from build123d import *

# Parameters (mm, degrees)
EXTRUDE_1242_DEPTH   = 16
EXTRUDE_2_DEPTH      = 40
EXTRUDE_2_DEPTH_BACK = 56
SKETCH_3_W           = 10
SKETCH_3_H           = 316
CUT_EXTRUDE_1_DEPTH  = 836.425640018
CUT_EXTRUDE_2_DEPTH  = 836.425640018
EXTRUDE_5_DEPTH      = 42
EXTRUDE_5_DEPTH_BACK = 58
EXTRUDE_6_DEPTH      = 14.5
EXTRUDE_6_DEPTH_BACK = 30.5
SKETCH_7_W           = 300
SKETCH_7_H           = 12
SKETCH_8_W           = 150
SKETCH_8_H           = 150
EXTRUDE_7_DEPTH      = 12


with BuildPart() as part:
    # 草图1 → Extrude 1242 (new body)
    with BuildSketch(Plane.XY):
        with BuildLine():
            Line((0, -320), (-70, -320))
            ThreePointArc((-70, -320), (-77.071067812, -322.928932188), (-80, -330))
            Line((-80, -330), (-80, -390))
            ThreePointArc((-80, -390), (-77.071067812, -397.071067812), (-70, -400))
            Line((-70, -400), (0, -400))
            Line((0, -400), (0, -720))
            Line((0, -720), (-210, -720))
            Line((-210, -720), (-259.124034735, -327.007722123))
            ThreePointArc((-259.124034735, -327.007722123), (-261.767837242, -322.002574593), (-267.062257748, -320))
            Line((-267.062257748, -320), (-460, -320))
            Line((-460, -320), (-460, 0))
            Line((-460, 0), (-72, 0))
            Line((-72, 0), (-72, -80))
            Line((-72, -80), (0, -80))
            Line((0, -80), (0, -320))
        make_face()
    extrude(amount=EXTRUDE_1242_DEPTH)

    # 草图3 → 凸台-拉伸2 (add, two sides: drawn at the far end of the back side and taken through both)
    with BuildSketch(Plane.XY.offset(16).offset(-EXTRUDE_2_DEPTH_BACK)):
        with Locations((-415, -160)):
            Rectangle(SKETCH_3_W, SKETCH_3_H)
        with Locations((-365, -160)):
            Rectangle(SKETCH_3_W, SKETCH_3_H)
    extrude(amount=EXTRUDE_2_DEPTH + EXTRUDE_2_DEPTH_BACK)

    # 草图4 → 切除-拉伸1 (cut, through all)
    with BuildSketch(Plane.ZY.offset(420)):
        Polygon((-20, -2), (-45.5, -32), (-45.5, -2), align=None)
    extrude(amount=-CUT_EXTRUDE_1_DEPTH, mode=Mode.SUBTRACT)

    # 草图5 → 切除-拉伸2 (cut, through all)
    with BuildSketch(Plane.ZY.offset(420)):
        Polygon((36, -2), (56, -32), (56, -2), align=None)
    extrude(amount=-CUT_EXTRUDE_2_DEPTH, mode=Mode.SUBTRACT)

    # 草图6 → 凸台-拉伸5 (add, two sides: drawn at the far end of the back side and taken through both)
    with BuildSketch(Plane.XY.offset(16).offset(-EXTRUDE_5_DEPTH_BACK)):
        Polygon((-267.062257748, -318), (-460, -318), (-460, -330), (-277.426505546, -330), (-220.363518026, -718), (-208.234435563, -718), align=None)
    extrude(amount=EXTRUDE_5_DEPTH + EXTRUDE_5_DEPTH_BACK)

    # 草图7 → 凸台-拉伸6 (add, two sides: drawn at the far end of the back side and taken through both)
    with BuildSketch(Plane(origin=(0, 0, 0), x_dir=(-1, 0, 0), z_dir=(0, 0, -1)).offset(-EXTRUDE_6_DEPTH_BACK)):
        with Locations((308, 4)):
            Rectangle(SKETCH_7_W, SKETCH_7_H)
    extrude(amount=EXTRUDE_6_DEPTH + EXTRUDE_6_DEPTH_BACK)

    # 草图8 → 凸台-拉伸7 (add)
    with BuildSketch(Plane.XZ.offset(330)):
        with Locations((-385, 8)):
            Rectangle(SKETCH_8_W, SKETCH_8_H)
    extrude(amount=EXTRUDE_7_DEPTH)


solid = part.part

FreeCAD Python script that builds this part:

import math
import FreeCAD as App
import Part
import Sketcher
from FreeCAD import Vector
Q = App.Units.Quantity

doc = App.newDocument("Part")
body = doc.addObject("PartDesign::Body", "Body")

# Sketch on XY plane
sketch1 = body.newObject("Sketcher::SketchObject", "Sketch")
sketch1.AttachmentSupport = (doc.getObject("XY_Plane"), [""])
sketch1.MapMode = "FlatFace"
sketch1.addGeometry(Part.LineSegment(Vector(-70, -320, 0), Vector(0, -320, 0)), False)
sketch1.addGeometry(Part.LineSegment(Vector(0, -320, 0), Vector(0, -80, 0)), False)
sketch1.addGeometry(Part.LineSegment(Vector(0, -80, 0), Vector(-72, -80, 0)), False)
sketch1.addGeometry(Part.LineSegment(Vector(-72, -80, 0), Vector(-72, 0, 0)), False)
sketch1.addGeometry(Part.LineSegment(Vector(-72, 0, 0), Vector(-460, 0, 0)), False)
sketch1.addGeometry(Part.LineSegment(Vector(-460, 0, 0), Vector(-460, -320, 0)), False)
sketch1.addGeometry(Part.LineSegment(Vector(-460, -320, 0), Vector(-267, -320, 0)), False)
sketch1.addGeometry(Part.ArcOfCircle(Part.Circle(Vector(-267, -328, 0), Vector(0, 0, 1), 8), math.radians(7), math.radians(90)), False)
sketch1.addGeometry(Part.LineSegment(Vector(-259, -327, 0), Vector(-210, -720, 0)), False)
sketch1.addGeometry(Part.LineSegment(Vector(-210, -720, 0), Vector(0, -720, 0)), False)
sketch1.addGeometry(Part.LineSegment(Vector(0, -720, 0), Vector(0, -400, 0)), False)
sketch1.addGeometry(Part.LineSegment(Vector(0, -400, 0), Vector(-70, -400, 0)), False)
sketch1.addGeometry(Part.ArcOfCircle(Part.Circle(Vector(-70, -390, 0), Vector(0, 0, 1), 10), math.radians(180), math.radians(270)), False)
sketch1.addGeometry(Part.LineSegment(Vector(-80, -390, 0), Vector(-80, -330, 0)), False)
sketch1.addGeometry(Part.ArcOfCircle(Part.Circle(Vector(-70, -330, 0), Vector(0, 0, 1), 10), math.radians(90), math.radians(180)), False)
sketch1.addConstraint(Sketcher.Constraint("Coincident", 0, 2, 1, 1))
sketch1.addConstraint(Sketcher.Constraint("Coincident", 1, 2, 2, 1))
sketch1.addConstraint(Sketcher.Constraint("Coincident", 2, 2, 3, 1))
sketch1.addConstraint(Sketcher.Constraint("Coincident", 3, 2, 4, 1))
sketch1.addConstraint(Sketcher.Constraint("Coincident", 4, 2, 5, 1))
sketch1.addConstraint(Sketcher.Constraint("Coincident", 5, 2, 6, 1))
sketch1.addConstraint(Sketcher.Constraint("Tangent", 6, 2, 7, 2))
sketch1.addConstraint(Sketcher.Constraint("Tangent", 7, 1, 8, 1))
sketch1.addConstraint(Sketcher.Constraint("Coincident", 8, 2, 9, 1))
sketch1.addConstraint(Sketcher.Constraint("Coincident", 9, 2, 10, 1))
sketch1.addConstraint(Sketcher.Constraint("Coincident", 10, 2, 11, 1))
sketch1.addConstraint(Sketcher.Constraint("Tangent", 11, 2, 12, 2))
sketch1.addConstraint(Sketcher.Constraint("Tangent", 12, 1, 13, 1))
sketch1.addConstraint(Sketcher.Constraint("Tangent", 13, 2, 14, 2))
sketch1.addConstraint(Sketcher.Constraint("Tangent", 14, 1, 0, 1))
sketch1.addConstraint(Sketcher.Constraint("Horizontal", 0))
sketch1.addConstraint(Sketcher.Constraint("Vertical", 1))
sketch1.addConstraint(Sketcher.Constraint("Horizontal", 2))
sketch1.addConstraint(Sketcher.Constraint("Vertical", 3))
sketch1.addConstraint(Sketcher.Constraint("Horizontal", 4))
sketch1.addConstraint(Sketcher.Constraint("Vertical", 5))
sketch1.addConstraint(Sketcher.Constraint("Horizontal", 6))
sketch1.addConstraint(Sketcher.Constraint("Horizontal", 9))
sketch1.addConstraint(Sketcher.Constraint("Vertical", 10))
sketch1.addConstraint(Sketcher.Constraint("Horizontal", 11))
sketch1.addConstraint(Sketcher.Constraint("Vertical", 13))
sketch1.addConstraint(Sketcher.Constraint("Equal", 12, 14))
sketch1.addConstraint(Sketcher.Constraint("PointOnObject", 0, 2, -2))
sketch1.addConstraint(Sketcher.Constraint("PointOnObject", 3, 2, -1))
sketch1.addConstraint(Sketcher.Constraint("PointOnObject", 9, 2, -2))
sketch1.addConstraint(Sketcher.Constraint("Horizontal", 0, 2, 5, 2))
sketch1.addConstraint(Sketcher.Constraint("Equal", 5, 10))
sketch1.addConstraint(Sketcher.Constraint("Radius", 7, Q("8 mm")))
sketch1.addConstraint(Sketcher.Constraint("Radius", 12, Q("10 mm")))
sketch1.addConstraint(Sketcher.Constraint("DistanceX", 0, 1, 0, 2, Q("70 mm")))
sketch1.addConstraint(Sketcher.Constraint("DistanceX", 2, 2, 2, 1, Q("72 mm")))
sketch1.addConstraint(Sketcher.Constraint("DistanceX", 4, 2, 4, 1, Q("388 mm")))
sketch1.addConstraint(Sketcher.Constraint("DistanceX", 9, 1, 9, 2, Q("210 mm")))
sketch1.addConstraint(Sketcher.Constraint("DistanceY", 1, 1, 1, 2, Q("240 mm")))
sketch1.addConstraint(Sketcher.Constraint("DistanceY", 3, 1, 3, 2, Q("80 mm")))
sketch1.addConstraint(Sketcher.Constraint("DistanceY", 13, 1, 13, 2, Q("60 mm")))
sketch1.addConstraint(Sketcher.Constraint("Distance", 8, Q("396.05063 mm")))
pad1 = body.newObject("PartDesign::Pad", "Pad")
pad1.Profile = sketch1
pad1.Length = 16

# Sketch on XY plane
sketch2 = body.newObject("Sketcher::SketchObject", "Sketch001")
sketch2.AttachmentSupport = (doc.getObject("XY_Plane"), [""])
sketch2.MapMode = "FlatFace"
sketch2.AttachmentOffset = App.Placement(Vector(0, 0, 16), App.Rotation())
sketch2.addGeometry(Part.LineSegment(Vector(-420, -2, 0), Vector(-420, -318, 0)), False)
sketch2.addGeometry(Part.LineSegment(Vector(-420, -318, 0), Vector(-410, -318, 0)), False)
sketch2.addGeometry(Part.LineSegment(Vector(-410, -318, 0), Vector(-410, -2, 0)), False)
sketch2.addGeometry(Part.LineSegment(Vector(-410, -2, 0), Vector(-420, -2, 0)), False)
sketch2.addGeometry(Part.LineSegment(Vector(-370, -2, 0), Vector(-370, -318, 0)), False)
sketch2.addGeometry(Part.LineSegment(Vector(-370, -318, 0), Vector(-360, -318, 0)), False)
sketch2.addGeometry(Part.LineSegment(Vector(-360, -318, 0), Vector(-360, -2, 0)), False)
sketch2.addGeometry(Part.LineSegment(Vector(-360, -2, 0), Vector(-370, -2, 0)), False)
sketch2.addConstraint(Sketcher.Constraint("Coincident", 0, 2, 1, 1))
sketch2.addConstraint(Sketcher.Constraint("Coincident", 1, 2, 2, 1))
sketch2.addConstraint(Sketcher.Constraint("Coincident", 2, 2, 3, 1))
sketch2.addConstraint(Sketcher.Constraint("Coincident", 3, 2, 0, 1))
sketch2.addConstraint(Sketcher.Constraint("Coincident", 4, 2, 5, 1))
sketch2.addConstraint(Sketcher.Constraint("Coincident", 5, 2, 6, 1))
sketch2.addConstraint(Sketcher.Constraint("Coincident", 6, 2, 7, 1))
sketch2.addConstraint(Sketcher.Constraint("Coincident", 7, 2, 4, 1))
sketch2.addConstraint(Sketcher.Constraint("Vertical", 0))
sketch2.addConstraint(Sketcher.Constraint("Horizontal", 1))
sketch2.addConstraint(Sketcher.Constraint("Vertical", 2))
sketch2.addConstraint(Sketcher.Constraint("Horizontal", 3))
sketch2.addConstraint(Sketcher.Constraint("Vertical", 4))
sketch2.addConstraint(Sketcher.Constraint("Horizontal", 5))
sketch2.addConstraint(Sketcher.Constraint("Vertical", 6))
sketch2.addConstraint(Sketcher.Constraint("Horizontal", 7))
sketch2.addConstraint(Sketcher.Constraint("Horizontal", 1, 2, 4, 2))
sketch2.addConstraint(Sketcher.Constraint("Horizontal", 3, 2, 6, 2))
sketch2.addConstraint(Sketcher.Constraint("Equal", 3, 5))
sketch2.addConstraint(Sketcher.Constraint("DistanceX", 1, 1, 1, 2, Q("10 mm")))
sketch2.addConstraint(Sketcher.Constraint("DistanceY", 0, 2, 0, 1, Q("316 mm")))
sketch2.addConstraint(Sketcher.Constraint("DistanceX", 0, 2, -1, 1, Q("420 mm")))
sketch2.addConstraint(Sketcher.Constraint("DistanceY", 0, 2, -1, 1, Q("318 mm")))
sketch2.addConstraint(Sketcher.Constraint("DistanceX", 4, 2, -1, 1, Q("370 mm")))
pad2 = body.newObject("PartDesign::Pad", "Pad001")
pad2.Profile = sketch2
pad2.Type = "TwoLengths"
pad2.Length = 40
pad2.Length2 = 56

# Sketch on YZ plane
sketch3 = body.newObject("Sketcher::SketchObject", "Sketch002")
sketch3.AttachmentSupport = (doc.getObject("YZ_Plane"), [""])
sketch3.MapMode = "FlatFace"
sketch3.AttachmentOffset = App.Placement(Vector(0, 0, -420), App.Rotation())
sketch3.addGeometry(Part.LineSegment(Vector(-32, -46, 0), Vector(-2, -20, 0)), False)
sketch3.addGeometry(Part.LineSegment(Vector(-2, -20, 0), Vector(-2, -46, 0)), False)
sketch3.addGeometry(Part.LineSegment(Vector(-2, -46, 0), Vector(-32, -46, 0)), False)
sketch3.addConstraint(Sketcher.Constraint("Coincident", 0, 2, 1, 1))
sketch3.addConstraint(Sketcher.Constraint("Coincident", 1, 2, 2, 1))
sketch3.addConstraint(Sketcher.Constraint("Coincident", 2, 2, 0, 1))
sketch3.addConstraint(Sketcher.Constraint("Vertical", 1))
sketch3.addConstraint(Sketcher.Constraint("Horizontal", 2))
sketch3.addConstraint(Sketcher.Constraint("DistanceX", 2, 2, 2, 1, Q("30 mm")))
sketch3.addConstraint(Sketcher.Constraint("DistanceY", 1, 2, 1, 1, Q("25.5 mm")))
sketch3.addConstraint(Sketcher.Constraint("DistanceX", 0, 2, -1, 1, Q("2 mm")))
sketch3.addConstraint(Sketcher.Constraint("DistanceY", 0, 2, -1, 1, Q("20 mm")))
pocket1 = body.newObject("PartDesign::Pocket", "Pocket")
pocket1.Profile = sketch3
pocket1.Type = "ThroughAll"
pocket1.Reversed = True

# Sketch on YZ plane
sketch4 = body.newObject("Sketcher::SketchObject", "Sketch003")
sketch4.AttachmentSupport = (doc.getObject("YZ_Plane"), [""])
sketch4.MapMode = "FlatFace"
sketch4.AttachmentOffset = App.Placement(Vector(0, 0, -420), App.Rotation())
sketch4.addGeometry(Part.LineSegment(Vector(-2, 36, 0), Vector(-32, 56, 0)), False)
sketch4.addGeometry(Part.LineSegment(Vector(-32, 56, 0), Vector(-2, 56, 0)), False)
sketch4.addGeometry(Part.LineSegment(Vector(-2, 56, 0), Vector(-2, 36, 0)), False)
sketch4.addConstraint(Sketcher.Constraint("Coincident", 0, 2, 1, 1))
sketch4.addConstraint(Sketcher.Constraint("Coincident", 1, 2, 2, 1))
sketch4.addConstraint(Sketcher.Constraint("Coincident", 2, 2, 0, 1))
sketch4.addConstraint(Sketcher.Constraint("Horizontal", 1))
sketch4.addConstraint(Sketcher.Constraint("Vertical", 2))
sketch4.addConstraint(Sketcher.Constraint("DistanceX", 1, 1, 1, 2, Q("30 mm")))
sketch4.addConstraint(Sketcher.Constraint("DistanceY", 2, 2, 2, 1, Q("20 mm")))
sketch4.addConstraint(Sketcher.Constraint("DistanceX", 0, 2, -1, 1, Q("32 mm")))
sketch4.addConstraint(Sketcher.Constraint("DistanceY", -1, 1, 0, 2, Q("56 mm")))
pocket2 = body.newObject("PartDesign::Pocket", "Pocket001")
pocket2.Profile = sketch4
pocket2.Type = "ThroughAll"
pocket2.Reversed = True

# Sketch on XY plane
sketch5 = body.newObject("Sketcher::SketchObject", "Sketch004")
sketch5.AttachmentSupport = (doc.getObject("XY_Plane"), [""])
sketch5.MapMode = "FlatFace"
sketch5.AttachmentOffset = App.Placement(Vector(0, 0, 16), App.Rotation())
sketch5.addGeometry(Part.LineSegment(Vector(-267, -318, 0), Vector(-460, -318, 0)), False)
sketch5.addGeometry(Part.LineSegment(Vector(-460, -318, 0), Vector(-460, -330, 0)), False)
sketch5.addGeometry(Part.LineSegment(Vector(-460, -330, 0), Vector(-277, -330, 0)), False)
sketch5.addGeometry(Part.LineSegment(Vector(-277, -330, 0), Vector(-220, -718, 0)), False)
sketch5.addGeometry(Part.LineSegment(Vector(-220, -718, 0), Vector(-208, -718, 0)), False)
sketch5.addGeometry(Part.LineSegment(Vector(-208, -718, 0), Vector(-267, -318, 0)), False)
sketch5.addConstraint(Sketcher.Constraint("Coincident", 0, 2, 1, 1))
sketch5.addConstraint(Sketcher.Constraint("Coincident", 1, 2, 2, 1))
sketch5.addConstraint(Sketcher.Constraint("Coincident", 2, 2, 3, 1))
sketch5.addConstraint(Sketcher.Constraint("Coincident", 3, 2, 4, 1))
sketch5.addConstraint(Sketcher.Constraint("Coincident", 4, 2, 5, 1))
sketch5.addConstraint(Sketcher.Constraint("Coincident", 5, 2, 0, 1))
sketch5.addConstraint(Sketcher.Constraint("Horizontal", 0))
sketch5.addConstraint(Sketcher.Constraint("Vertical", 1))
sketch5.addConstraint(Sketcher.Constraint("Horizontal", 2))
sketch5.addConstraint(Sketcher.Constraint("Horizontal", 4))
sketch5.addConstraint(Sketcher.Constraint("Parallel", 3, 5))
sketch5.addConstraint(Sketcher.Constraint("DistanceY", 1, 2, 1, 1, Q("12 mm")))
sketch5.addConstraint(Sketcher.Constraint("DistanceX", 0, 2, -1, 1, Q("460 mm")))
sketch5.addConstraint(Sketcher.Constraint("DistanceY", 0, 2, -1, 1, Q("318 mm")))
sketch5.addConstraint(Sketcher.Constraint("DistanceY", 3, 2, -1, 1, Q("718 mm")))
sketch5.addConstraint(Sketcher.Constraint("Distance", 5, Q("404.302749 mm")))
sketch5.addConstraint(Sketcher.Constraint("DistanceX", 0, 2, 0, 1, Q("192.937742 mm")))
sketch5.addConstraint(Sketcher.Constraint("DistanceX", 2, 1, 2, 2, Q("182.573494 mm")))
pad3 = body.newObject("PartDesign::Pad", "Pad002")
pad3.Profile = sketch5
pad3.Type = "TwoLengths"
pad3.Length = 42
pad3.Length2 = 58

# Sketch on XY plane
sketch6 = body.newObject("Sketcher::SketchObject", "Sketch005")
sketch6.AttachmentSupport = (doc.getObject("XY_Plane"), [""])
sketch6.MapMode = "FlatFace"
sketch6.addGeometry(Part.LineSegment(Vector(-158, 10, 0), Vector(-158, -2, 0)), False)
sketch6.addGeometry(Part.LineSegment(Vector(-158, -2, 0), Vector(-458, -2, 0)), False)
sketch6.addGeometry(Part.LineSegment(Vector(-458, -2, 0), Vector(-458, 10, 0)), False)
sketch6.addGeometry(Part.LineSegment(Vector(-458, 10, 0), Vector(-158, 10, 0)), False)
sketch6.addConstraint(Sketcher.Constraint("Coincident", 0, 2, 1, 1))
sketch6.addConstraint(Sketcher.Constraint("Coincident", 1, 2, 2, 1))
sketch6.addConstraint(Sketcher.Constraint("Coincident", 2, 2, 3, 1))
sketch6.addConstraint(Sketcher.Constraint("Coincident", 3, 2, 0, 1))
sketch6.addConstraint(Sketcher.Constraint("Vertical", 0))
sketch6.addConstraint(Sketcher.Constraint("Horizontal", 1))
sketch6.addConstraint(Sketcher.Constraint("Vertical", 2))
sketch6.addConstraint(Sketcher.Constraint("Horizontal", 3))
sketch6.addConstraint(Sketcher.Constraint("DistanceX", 1, 2, 1, 1, Q("300 mm")))
sketch6.addConstraint(Sketcher.Constraint("DistanceY", 0, 2, 0, 1, Q("12 mm")))
sketch6.addConstraint(Sketcher.Constraint("DistanceX", 0, 2, -1, 1, Q("158 mm")))
sketch6.addConstraint(Sketcher.Constraint("DistanceY", 0, 2, -1, 1, Q("2 mm")))
pad4 = body.newObject("PartDesign::Pad", "Pad003")
pad4.Profile = sketch6
pad4.Type = "TwoLengths"
pad4.Length = 14.5
pad4.Length2 = 30.5
pad4.Reversed = True

# Sketch on XZ plane
sketch7 = body.newObject("Sketcher::SketchObject", "Sketch006")
sketch7.AttachmentSupport = (doc.getObject("XZ_Plane"), [""])
sketch7.MapMode = "FlatFace"
sketch7.AttachmentOffset = App.Placement(Vector(0, 0, 330), App.Rotation())
sketch7.addGeometry(Part.LineSegment(Vector(-460, 83, 0), Vector(-460, -67, 0)), False)
sketch7.addGeometry(Part.LineSegment(Vector(-460, -67, 0), Vector(-310, -67, 0)), False)
sketch7.addGeometry(Part.LineSegment(Vector(-310, -67, 0), Vector(-310, 83, 0)), False)
sketch7.addGeometry(Part.LineSegment(Vector(-310, 83, 0), Vector(-460, 83, 0)), False)
sketch7.addConstraint(Sketcher.Constraint("Coincident", 0, 2, 1, 1))
sketch7.addConstraint(Sketcher.Constraint("Coincident", 1, 2, 2, 1))
sketch7.addConstraint(Sketcher.Constraint("Coincident", 2, 2, 3, 1))
sketch7.addConstraint(Sketcher.Constraint("Coincident", 3, 2, 0, 1))
sketch7.addConstraint(Sketcher.Constraint("Vertical", 0))
sketch7.addConstraint(Sketcher.Constraint("Horizontal", 1))
sketch7.addConstraint(Sketcher.Constraint("Vertical", 2))
sketch7.addConstraint(Sketcher.Constraint("Horizontal", 3))
sketch7.addConstraint(Sketcher.Constraint("Equal", 3, 0))
sketch7.addConstraint(Sketcher.Constraint("DistanceX", 1, 1, 1, 2, Q("150 mm")))
sketch7.addConstraint(Sketcher.Constraint("DistanceX", 0, 2, -1, 1, Q("460 mm")))
sketch7.addConstraint(Sketcher.Constraint("DistanceY", 0, 2, -1, 1, Q("67 mm")))
pad5 = body.newObject("PartDesign::Pad", "Pad004")
pad5.Profile = sketch7
pad5.Length = 12

doc.recompute()
